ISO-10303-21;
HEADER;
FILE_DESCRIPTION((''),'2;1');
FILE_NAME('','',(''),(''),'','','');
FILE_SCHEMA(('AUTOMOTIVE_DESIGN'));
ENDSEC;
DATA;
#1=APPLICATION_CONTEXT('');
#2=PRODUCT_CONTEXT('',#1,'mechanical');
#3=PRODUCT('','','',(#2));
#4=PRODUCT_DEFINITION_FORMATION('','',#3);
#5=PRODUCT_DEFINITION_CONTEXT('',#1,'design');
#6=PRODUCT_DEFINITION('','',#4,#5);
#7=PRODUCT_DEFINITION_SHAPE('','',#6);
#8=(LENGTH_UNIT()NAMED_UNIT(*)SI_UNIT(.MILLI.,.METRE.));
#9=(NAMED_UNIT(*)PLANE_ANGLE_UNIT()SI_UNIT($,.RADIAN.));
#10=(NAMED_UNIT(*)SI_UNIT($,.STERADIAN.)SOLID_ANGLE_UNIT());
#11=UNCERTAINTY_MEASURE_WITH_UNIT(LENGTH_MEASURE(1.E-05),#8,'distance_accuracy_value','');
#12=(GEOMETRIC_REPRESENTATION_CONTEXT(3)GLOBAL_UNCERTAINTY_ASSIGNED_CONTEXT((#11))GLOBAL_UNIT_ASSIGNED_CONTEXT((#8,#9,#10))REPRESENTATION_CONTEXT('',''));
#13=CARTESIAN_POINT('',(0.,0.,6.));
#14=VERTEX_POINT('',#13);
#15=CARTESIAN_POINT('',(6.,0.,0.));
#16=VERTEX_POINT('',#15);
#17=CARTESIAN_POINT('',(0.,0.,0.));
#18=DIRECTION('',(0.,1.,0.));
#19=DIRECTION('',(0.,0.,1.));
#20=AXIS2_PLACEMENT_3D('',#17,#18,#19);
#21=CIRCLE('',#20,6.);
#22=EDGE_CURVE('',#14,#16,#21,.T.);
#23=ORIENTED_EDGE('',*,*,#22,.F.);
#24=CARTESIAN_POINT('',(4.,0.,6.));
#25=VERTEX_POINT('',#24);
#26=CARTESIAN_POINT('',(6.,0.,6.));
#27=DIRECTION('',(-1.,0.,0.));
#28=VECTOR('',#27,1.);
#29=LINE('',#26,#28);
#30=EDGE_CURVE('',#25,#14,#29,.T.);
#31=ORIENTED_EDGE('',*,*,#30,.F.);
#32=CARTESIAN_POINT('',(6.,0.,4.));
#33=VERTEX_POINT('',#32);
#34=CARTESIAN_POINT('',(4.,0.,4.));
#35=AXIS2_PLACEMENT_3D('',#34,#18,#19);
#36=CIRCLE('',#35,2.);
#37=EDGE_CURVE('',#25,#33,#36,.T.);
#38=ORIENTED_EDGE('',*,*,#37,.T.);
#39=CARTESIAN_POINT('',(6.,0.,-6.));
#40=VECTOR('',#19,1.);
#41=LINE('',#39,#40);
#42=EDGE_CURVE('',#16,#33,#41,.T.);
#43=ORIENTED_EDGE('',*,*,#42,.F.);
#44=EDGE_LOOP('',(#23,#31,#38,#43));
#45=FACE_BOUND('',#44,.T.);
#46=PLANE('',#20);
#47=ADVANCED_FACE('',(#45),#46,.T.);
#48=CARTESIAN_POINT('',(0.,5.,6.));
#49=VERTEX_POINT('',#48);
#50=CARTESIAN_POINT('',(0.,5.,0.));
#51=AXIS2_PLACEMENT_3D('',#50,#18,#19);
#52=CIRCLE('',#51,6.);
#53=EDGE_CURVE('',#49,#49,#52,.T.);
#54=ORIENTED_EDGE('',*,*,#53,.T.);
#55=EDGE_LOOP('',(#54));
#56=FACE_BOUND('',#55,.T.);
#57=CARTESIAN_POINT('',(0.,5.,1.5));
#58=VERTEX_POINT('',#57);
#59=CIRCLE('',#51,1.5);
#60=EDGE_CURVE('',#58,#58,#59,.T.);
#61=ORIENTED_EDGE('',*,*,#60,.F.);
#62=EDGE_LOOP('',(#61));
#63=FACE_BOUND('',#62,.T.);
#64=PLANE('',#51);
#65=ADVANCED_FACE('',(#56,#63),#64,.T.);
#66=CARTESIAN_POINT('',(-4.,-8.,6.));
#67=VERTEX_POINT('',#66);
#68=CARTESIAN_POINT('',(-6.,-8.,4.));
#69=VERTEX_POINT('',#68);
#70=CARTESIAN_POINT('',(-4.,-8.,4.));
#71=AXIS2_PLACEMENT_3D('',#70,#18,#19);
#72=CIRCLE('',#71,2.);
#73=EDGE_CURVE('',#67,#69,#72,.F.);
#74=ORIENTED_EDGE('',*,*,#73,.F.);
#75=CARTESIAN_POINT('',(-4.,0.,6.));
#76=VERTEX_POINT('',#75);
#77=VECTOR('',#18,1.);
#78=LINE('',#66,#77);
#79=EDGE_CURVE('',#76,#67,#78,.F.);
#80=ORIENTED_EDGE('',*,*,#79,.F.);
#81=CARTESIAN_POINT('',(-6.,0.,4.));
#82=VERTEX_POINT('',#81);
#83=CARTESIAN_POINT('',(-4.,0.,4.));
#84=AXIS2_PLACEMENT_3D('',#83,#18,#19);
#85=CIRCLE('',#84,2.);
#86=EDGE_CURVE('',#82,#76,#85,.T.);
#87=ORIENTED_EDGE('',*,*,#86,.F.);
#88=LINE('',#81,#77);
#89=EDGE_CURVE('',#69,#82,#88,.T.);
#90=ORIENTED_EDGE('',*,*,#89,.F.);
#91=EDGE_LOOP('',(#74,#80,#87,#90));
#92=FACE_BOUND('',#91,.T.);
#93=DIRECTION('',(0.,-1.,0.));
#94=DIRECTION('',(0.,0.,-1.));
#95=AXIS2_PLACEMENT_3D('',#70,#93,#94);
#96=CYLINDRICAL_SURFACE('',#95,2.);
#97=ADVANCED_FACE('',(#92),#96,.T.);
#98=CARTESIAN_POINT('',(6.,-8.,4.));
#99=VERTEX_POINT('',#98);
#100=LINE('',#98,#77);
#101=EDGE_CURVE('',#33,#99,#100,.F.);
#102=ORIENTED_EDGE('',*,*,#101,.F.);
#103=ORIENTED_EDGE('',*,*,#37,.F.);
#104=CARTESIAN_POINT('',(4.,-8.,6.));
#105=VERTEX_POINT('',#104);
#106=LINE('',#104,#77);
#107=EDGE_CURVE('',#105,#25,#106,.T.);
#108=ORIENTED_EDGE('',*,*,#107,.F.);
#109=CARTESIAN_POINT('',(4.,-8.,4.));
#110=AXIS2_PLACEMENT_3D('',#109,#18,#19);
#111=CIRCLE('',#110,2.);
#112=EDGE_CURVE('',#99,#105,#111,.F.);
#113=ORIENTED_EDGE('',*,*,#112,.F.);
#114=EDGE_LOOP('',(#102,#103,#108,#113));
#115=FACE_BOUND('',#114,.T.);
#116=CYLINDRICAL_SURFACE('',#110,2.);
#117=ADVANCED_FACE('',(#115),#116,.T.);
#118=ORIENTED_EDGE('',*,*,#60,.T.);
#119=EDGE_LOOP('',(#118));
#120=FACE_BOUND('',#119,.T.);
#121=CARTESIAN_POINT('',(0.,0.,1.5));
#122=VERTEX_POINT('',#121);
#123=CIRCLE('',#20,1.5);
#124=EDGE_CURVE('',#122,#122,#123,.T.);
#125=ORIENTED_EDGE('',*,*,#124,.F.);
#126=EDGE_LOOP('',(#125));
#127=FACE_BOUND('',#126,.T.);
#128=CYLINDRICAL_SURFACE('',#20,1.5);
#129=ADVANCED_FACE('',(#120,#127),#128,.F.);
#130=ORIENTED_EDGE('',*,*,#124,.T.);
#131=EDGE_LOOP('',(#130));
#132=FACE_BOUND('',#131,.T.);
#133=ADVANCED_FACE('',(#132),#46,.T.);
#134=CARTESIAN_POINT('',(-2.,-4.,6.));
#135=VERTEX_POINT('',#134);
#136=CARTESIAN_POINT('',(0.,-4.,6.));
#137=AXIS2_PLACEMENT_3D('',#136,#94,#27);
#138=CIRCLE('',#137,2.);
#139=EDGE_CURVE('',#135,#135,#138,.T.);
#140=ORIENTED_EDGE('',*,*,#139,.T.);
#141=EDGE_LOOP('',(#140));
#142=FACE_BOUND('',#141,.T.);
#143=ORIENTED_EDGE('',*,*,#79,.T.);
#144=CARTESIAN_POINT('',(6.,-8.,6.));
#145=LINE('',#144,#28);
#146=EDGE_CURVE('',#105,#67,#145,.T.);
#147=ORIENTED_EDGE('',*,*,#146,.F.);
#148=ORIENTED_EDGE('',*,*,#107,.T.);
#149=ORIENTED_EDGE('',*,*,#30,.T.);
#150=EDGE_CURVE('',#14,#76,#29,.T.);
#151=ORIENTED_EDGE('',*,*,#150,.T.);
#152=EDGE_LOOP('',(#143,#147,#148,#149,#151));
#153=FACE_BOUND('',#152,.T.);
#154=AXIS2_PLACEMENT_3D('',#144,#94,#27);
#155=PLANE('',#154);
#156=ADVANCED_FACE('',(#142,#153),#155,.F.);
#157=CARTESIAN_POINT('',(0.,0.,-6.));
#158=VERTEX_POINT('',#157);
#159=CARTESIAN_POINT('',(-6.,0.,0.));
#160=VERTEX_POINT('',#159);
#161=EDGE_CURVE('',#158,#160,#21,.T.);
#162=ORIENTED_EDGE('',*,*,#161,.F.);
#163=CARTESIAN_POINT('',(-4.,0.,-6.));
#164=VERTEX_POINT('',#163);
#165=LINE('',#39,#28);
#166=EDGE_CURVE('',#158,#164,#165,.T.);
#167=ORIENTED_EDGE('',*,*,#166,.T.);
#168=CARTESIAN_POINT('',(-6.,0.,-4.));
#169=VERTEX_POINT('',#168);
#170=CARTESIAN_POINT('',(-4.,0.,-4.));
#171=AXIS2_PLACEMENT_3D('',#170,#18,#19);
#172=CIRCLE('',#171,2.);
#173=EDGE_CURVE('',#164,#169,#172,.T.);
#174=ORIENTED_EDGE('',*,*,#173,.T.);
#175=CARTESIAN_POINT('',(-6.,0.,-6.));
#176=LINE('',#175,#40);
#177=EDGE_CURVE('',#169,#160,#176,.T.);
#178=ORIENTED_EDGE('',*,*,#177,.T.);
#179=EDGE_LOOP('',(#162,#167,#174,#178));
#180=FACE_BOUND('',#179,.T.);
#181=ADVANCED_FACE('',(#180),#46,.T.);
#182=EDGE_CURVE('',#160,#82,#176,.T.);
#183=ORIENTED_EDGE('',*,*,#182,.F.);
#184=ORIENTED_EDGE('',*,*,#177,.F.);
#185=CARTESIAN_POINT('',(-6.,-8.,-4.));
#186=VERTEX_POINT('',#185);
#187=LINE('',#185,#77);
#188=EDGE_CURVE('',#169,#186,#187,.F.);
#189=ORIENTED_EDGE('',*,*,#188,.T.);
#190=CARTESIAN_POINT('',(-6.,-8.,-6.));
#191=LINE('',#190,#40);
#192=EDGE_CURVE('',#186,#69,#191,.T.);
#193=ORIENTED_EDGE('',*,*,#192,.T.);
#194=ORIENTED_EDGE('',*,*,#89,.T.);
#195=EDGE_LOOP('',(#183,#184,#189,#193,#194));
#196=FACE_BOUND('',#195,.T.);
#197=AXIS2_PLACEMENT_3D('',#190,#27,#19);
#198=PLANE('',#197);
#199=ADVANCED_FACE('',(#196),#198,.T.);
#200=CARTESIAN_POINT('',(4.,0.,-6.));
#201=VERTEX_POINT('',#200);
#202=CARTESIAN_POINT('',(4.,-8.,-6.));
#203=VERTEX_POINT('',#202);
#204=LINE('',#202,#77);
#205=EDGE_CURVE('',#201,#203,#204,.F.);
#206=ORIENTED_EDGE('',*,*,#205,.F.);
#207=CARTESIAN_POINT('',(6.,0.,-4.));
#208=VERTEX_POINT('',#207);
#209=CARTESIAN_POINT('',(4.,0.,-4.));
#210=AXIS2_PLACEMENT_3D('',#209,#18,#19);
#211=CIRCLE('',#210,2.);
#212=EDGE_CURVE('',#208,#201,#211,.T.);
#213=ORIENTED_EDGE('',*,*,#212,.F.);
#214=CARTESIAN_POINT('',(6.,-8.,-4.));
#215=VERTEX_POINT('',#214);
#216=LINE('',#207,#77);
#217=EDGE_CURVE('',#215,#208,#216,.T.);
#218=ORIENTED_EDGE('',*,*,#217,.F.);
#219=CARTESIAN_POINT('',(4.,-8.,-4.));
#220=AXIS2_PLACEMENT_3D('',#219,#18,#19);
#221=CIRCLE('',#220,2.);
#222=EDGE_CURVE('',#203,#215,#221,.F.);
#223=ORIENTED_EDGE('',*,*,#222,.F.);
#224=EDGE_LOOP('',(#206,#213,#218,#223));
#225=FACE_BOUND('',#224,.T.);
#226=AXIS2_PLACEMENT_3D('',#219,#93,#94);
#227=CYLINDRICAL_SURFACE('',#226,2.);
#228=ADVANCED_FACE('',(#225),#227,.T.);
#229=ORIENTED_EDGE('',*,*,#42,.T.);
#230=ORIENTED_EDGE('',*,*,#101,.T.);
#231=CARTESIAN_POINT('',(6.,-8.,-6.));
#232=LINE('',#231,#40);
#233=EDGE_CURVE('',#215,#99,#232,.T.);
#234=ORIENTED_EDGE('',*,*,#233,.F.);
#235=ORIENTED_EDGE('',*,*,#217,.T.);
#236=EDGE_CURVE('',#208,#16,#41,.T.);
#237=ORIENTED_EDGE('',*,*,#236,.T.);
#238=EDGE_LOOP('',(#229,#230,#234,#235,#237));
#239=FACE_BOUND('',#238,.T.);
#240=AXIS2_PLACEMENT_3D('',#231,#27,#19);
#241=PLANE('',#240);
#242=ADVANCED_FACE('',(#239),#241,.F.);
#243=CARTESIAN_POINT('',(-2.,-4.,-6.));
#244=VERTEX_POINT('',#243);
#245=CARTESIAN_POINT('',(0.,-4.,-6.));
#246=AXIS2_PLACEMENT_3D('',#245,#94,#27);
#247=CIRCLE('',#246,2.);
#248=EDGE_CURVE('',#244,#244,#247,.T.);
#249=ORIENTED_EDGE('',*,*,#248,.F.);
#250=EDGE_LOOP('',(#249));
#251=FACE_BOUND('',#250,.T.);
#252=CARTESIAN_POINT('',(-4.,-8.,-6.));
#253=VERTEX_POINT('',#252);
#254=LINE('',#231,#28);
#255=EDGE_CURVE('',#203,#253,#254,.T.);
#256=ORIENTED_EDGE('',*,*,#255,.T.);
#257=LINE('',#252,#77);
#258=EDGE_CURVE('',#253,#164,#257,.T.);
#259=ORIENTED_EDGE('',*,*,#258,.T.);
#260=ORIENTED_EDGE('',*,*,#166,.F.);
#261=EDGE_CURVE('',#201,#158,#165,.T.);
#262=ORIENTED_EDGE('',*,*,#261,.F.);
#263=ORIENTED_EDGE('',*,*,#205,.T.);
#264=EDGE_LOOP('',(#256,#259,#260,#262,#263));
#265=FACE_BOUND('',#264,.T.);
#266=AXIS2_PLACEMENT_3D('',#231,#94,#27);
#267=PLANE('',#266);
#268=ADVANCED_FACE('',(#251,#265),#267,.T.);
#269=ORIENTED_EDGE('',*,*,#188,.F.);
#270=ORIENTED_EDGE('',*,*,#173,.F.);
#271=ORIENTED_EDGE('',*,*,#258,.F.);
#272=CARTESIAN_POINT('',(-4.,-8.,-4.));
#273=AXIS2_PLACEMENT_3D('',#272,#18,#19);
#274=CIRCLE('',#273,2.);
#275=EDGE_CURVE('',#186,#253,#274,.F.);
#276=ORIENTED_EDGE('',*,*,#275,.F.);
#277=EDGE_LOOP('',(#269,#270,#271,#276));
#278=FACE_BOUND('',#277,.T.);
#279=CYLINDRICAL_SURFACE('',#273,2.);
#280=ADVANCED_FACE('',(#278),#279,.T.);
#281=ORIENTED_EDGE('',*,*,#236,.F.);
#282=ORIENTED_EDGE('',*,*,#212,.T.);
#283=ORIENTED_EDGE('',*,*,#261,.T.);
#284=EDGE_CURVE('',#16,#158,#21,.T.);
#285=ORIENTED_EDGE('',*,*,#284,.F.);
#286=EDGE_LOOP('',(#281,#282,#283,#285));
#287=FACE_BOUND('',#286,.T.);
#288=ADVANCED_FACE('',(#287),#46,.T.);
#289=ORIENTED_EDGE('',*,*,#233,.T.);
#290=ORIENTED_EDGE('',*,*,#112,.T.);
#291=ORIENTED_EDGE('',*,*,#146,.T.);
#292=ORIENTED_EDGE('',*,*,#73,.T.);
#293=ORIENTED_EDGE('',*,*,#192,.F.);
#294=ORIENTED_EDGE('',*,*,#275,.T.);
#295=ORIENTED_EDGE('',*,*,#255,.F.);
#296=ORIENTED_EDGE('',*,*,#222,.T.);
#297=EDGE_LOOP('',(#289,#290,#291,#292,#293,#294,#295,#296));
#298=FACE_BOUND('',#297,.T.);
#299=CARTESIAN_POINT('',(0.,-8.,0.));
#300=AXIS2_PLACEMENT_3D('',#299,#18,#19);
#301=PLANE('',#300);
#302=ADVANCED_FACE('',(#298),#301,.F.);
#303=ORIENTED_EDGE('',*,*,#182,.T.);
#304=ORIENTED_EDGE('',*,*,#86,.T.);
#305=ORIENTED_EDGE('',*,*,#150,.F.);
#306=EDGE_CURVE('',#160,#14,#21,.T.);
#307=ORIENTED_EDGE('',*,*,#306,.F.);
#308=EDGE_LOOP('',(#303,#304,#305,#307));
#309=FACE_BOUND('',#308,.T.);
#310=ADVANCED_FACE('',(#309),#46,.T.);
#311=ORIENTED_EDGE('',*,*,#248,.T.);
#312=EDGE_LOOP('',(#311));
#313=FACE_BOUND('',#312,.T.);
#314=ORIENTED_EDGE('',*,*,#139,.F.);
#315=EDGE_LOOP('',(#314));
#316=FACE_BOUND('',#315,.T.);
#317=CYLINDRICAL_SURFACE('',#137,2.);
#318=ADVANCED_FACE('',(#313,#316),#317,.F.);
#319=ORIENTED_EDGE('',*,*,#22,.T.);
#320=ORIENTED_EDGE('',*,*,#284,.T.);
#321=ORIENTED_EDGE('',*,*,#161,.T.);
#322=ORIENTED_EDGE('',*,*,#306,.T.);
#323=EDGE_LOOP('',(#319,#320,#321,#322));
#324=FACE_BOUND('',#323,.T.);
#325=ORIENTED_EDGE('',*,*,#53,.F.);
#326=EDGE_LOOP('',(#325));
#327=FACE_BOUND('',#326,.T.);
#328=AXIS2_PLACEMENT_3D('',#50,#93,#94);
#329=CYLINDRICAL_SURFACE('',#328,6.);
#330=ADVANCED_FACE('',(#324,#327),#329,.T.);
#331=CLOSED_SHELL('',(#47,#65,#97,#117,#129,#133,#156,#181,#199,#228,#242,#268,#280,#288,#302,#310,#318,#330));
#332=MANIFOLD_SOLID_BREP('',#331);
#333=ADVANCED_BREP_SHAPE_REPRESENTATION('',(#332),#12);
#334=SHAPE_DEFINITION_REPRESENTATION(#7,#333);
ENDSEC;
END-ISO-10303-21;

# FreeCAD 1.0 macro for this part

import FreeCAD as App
import Part
import Sketcher


def edges_at(feature, points):
    """Names of the edges that pass closest to the given points."""
    edges = feature.Shape.Edges
    near = lambda p: min(range(len(edges)), key=lambda i: edges[i].distToShape(Part.Vertex(*p))[0])
    return sorted({f"Edge{near(p) + 1}" for p in points})


def add_polygon(sketch, points):
    """Adds a closed chain of lines whose ends are joined by coincident constraints."""
    first, n = sketch.GeometryCount, len(points)
    for a, b in zip(points, points[1:] + points[:1]):
        sketch.addGeometry(Part.LineSegment(App.Vector(*a, 0), App.Vector(*b, 0)), False)
    for i in range(n):
        sketch.addConstraint(Sketcher.Constraint("Coincident", first + i, 2, first + (i + 1) % n, 1))

doc = App.newDocument("Part")
body = doc.addObject("PartDesign::Body", "Body")

# Sketch on XZ plane
sketch1 = body.newObject("Sketcher::SketchObject", "Sketch")
sketch1.AttachmentSupport = (doc.getObject("XZ_Plane"), [""])
sketch1.MapMode = "FlatFace"
sketch1.addGeometry(Part.Circle(App.Vector(0, 0, 0), App.Vector(0, 0, 1), 6), False)
sketch1.addConstraint(Sketcher.Constraint("Coincident", 0, 3, -1, 1))
sketch1.addConstraint(Sketcher.Constraint("Diameter", 0, 12.0))
pad1 = body.newObject("PartDesign::Pad", "Pad")
pad1.Profile = sketch1
pad1.Length = 5
pad1.Reversed = True

# Sketch on XZ plane
sketch2 = body.newObject("Sketcher::SketchObject", "Sketch001")
sketch2.AttachmentSupport = (doc.getObject("XZ_Plane"), [""])
sketch2.MapMode = "FlatFace"
add_polygon(sketch2, [(-6, 6), (-6, -6), (6, -6), (6, 6)])  # lines 0-3
sketch2.addConstraint(Sketcher.Constraint("Vertical", 0))
sketch2.addConstraint(Sketcher.Constraint("Horizontal", 1))
sketch2.addConstraint(Sketcher.Constraint("Vertical", 2))
sketch2.addConstraint(Sketcher.Constraint("Horizontal", 3))
sketch2.addConstraint(Sketcher.Constraint("Symmetric", 0, 2, 2, 2, -1, 1))
sketch2.addConstraint(Sketcher.Constraint("Equal", 3, 0))
sketch2.addConstraint(Sketcher.Constraint("DistanceX", 1, 1, 1, 2, 12.0))
pad2 = body.newObject("PartDesign::Pad", "Pad001")
pad2.Profile = sketch2
pad2.Length = 8
doc.recompute()

fillet = body.newObject("PartDesign::Fillet", "Fillet")
fillet.Base = (pad2, edges_at(pad2, [
    (-6, -4, 6),
    (-6, -4, -6),
    (6, -4, -6),
    (6, -4, 6),
]))
fillet.Radius = 2

# Sketch on XZ plane
sketch3 = body.newObject("Sketcher::SketchObject", "Sketch002")
sketch3.AttachmentSupport = (doc.getObject("XZ_Plane"), [""])
sketch3.MapMode = "FlatFace"
sketch3.AttachmentOffset = App.Placement(App.Vector(0, 0, -5), App.Rotation())
sketch3.addGeometry(Part.Circle(App.Vector(0, 0, 0), App.Vector(0, 0, 1), 1.5), False)
sketch3.addConstraint(Sketcher.Constraint("Coincident", 0, 3, -1, 1))
sketch3.addConstraint(Sketcher.Constraint("Diameter", 0, 3.0))
pocket1 = body.newObject("PartDesign::Pocket", "Pocket")
pocket1.Profile = sketch3
pocket1.Length = 5
pocket1.Reversed = True

# Sketch on XY plane
sketch4 = body.newObject("Sketcher::SketchObject", "Sketch003")
sketch4.AttachmentSupport = (doc.getObject("XY_Plane"), [""])
sketch4.MapMode = "FlatFace"
sketch4.AttachmentOffset = App.Placement(App.Vector(0, 0, -6), App.Rotation())
sketch4.addGeometry(Part.Circle(App.Vector(0, -4, 0), App.Vector(0, 0, 1), 2), False)
sketch4.addConstraint(Sketcher.Constraint("PointOnObject", 0, 3, -2))
sketch4.addConstraint(Sketcher.Constraint("Diameter", 0, 4.0))
sketch4.addConstraint(Sketcher.Constraint("DistanceY", 0, 3, -1, 1, 4.0))
pocket2 = body.newObject("PartDesign::Pocket", "Pocket001")
pocket2.Profile = sketch4
pocket2.Type = "ThroughAll"
pocket2.Reversed = True

doc.recompute()
